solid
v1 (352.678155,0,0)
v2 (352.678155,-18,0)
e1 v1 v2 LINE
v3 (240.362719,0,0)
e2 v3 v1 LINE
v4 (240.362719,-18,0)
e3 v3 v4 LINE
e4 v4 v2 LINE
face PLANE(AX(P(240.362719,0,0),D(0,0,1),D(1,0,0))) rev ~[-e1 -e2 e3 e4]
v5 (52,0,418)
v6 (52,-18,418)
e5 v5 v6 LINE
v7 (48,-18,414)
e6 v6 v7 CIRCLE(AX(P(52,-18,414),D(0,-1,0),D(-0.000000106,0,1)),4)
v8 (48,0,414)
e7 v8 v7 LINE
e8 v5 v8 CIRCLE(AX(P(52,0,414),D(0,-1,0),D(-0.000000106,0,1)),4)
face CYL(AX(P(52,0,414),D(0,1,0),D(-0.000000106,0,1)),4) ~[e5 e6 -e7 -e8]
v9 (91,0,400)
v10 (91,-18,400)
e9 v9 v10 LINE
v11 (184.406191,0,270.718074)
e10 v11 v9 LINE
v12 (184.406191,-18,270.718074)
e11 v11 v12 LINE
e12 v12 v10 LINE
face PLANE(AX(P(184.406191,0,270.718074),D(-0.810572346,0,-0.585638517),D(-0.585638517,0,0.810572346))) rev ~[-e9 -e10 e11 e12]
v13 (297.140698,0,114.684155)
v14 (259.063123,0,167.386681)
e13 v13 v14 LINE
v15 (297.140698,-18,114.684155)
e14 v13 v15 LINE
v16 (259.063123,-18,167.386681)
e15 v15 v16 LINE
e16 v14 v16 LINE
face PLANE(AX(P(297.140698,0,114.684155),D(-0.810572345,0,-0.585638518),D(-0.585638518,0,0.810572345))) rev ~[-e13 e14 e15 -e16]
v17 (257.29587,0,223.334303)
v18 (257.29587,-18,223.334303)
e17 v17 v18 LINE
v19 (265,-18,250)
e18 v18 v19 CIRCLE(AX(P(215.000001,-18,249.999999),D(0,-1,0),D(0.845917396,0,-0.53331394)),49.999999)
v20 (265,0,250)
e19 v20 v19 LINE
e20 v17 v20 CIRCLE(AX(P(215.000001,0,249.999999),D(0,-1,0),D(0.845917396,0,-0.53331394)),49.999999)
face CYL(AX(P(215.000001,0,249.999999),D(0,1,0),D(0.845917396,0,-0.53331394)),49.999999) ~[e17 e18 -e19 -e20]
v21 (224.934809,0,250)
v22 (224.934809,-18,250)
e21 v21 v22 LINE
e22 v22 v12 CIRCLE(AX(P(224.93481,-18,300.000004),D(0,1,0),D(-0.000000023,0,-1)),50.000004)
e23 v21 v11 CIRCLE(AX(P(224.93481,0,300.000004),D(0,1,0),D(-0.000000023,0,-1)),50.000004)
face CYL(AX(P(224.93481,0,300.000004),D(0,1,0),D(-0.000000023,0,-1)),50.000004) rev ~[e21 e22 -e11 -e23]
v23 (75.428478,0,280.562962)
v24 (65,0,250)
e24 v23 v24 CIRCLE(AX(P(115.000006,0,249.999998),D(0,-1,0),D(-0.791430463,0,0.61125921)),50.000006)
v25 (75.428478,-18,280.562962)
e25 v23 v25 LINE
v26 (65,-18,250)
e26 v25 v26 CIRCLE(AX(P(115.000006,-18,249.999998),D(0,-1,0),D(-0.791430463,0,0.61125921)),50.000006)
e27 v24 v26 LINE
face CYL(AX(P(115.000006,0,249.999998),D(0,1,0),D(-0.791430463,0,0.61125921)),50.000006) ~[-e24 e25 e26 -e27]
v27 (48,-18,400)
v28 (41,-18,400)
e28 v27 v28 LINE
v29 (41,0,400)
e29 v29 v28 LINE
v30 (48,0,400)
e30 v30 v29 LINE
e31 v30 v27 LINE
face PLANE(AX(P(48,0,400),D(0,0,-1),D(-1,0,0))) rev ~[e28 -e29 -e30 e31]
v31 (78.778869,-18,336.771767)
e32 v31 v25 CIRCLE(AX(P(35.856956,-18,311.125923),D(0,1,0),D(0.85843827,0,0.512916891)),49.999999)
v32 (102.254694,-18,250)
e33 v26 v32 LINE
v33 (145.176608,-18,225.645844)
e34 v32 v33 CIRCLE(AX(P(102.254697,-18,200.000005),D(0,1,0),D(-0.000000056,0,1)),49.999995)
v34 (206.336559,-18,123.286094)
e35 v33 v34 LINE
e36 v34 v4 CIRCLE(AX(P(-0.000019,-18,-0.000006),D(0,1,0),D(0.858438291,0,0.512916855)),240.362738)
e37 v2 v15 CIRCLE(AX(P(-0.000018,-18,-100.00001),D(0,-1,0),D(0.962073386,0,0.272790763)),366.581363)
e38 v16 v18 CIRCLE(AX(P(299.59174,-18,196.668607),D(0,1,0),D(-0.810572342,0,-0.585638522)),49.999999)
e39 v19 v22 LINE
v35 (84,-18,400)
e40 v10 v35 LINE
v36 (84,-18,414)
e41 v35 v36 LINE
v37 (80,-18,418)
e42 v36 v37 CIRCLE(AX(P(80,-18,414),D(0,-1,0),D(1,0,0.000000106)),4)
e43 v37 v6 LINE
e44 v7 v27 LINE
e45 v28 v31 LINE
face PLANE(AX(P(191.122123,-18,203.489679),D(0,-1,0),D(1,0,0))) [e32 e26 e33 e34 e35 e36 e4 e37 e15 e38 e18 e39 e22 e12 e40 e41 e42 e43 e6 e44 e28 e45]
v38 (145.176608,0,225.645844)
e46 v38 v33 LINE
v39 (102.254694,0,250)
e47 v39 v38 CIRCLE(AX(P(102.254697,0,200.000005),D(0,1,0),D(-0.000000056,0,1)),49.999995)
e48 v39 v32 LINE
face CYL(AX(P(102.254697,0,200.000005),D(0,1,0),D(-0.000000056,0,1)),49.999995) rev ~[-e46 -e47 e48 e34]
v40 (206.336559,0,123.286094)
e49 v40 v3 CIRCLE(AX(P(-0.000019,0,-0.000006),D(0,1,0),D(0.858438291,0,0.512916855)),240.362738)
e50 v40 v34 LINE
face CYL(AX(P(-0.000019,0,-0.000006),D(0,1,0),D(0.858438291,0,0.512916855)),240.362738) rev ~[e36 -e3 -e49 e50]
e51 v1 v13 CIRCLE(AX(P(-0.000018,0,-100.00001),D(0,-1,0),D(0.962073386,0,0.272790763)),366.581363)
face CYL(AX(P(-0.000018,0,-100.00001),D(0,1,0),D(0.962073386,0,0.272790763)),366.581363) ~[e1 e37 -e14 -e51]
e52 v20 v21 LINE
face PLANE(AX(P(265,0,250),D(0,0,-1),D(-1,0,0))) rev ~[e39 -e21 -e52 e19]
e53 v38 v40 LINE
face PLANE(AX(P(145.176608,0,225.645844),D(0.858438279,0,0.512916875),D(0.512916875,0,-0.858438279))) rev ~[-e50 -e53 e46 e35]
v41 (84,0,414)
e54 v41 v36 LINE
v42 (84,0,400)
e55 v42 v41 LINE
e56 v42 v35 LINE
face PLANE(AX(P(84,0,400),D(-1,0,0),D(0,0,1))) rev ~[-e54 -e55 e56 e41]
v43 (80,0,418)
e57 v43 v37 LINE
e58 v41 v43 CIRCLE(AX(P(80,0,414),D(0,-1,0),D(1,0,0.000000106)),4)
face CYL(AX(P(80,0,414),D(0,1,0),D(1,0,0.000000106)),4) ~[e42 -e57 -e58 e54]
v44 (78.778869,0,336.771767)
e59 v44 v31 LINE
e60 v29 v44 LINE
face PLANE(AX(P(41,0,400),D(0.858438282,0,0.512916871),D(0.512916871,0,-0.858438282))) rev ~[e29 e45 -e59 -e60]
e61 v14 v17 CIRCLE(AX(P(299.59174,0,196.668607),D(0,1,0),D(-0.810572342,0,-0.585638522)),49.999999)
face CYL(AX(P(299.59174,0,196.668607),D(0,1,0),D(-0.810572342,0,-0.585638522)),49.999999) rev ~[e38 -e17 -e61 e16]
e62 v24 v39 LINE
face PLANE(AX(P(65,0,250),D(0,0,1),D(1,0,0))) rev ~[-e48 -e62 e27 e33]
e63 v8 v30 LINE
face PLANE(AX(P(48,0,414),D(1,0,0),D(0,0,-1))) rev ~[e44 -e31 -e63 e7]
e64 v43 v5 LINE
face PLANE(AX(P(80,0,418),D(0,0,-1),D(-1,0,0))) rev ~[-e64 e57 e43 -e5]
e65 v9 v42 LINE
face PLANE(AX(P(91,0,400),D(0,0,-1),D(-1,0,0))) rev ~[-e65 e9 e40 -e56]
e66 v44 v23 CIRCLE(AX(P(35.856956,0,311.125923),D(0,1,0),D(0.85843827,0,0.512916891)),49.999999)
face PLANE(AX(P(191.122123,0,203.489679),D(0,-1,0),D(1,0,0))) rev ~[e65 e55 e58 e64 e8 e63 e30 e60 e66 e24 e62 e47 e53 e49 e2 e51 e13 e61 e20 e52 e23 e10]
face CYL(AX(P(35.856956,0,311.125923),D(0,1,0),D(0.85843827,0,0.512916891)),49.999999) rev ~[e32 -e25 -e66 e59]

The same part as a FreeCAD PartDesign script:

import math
import FreeCAD as App
import Part
import Sketcher

V = App.Vector
Q = App.Units.Quantity

doc = App.newDocument("Part")
body = doc.addObject("PartDesign::Body", "Body")

# Sketch on XZ plane
sketch1 = body.newObject("Sketcher::SketchObject", "Sketch")
sketch1.AttachmentSupport = (doc.getObject("XZ_Plane"), [""])
sketch1.MapMode = "FlatFace"
sketch1.addGeometry(Part.LineSegment(V(240.4, 0, 0), V(352.7, 0, 0)), False)
sketch1.addGeometry(Part.ArcOfCircle(Part.Circle(V(0, -100, 0), V(0, 0, 1), 366.6), math.radians(16), math.radians(36)), False)
sketch1.addGeometry(Part.LineSegment(V(297.1, 114.7, 0), V(259.1, 167.4, 0)), False)
sketch1.addGeometry(Part.ArcOfCircle(Part.Circle(V(299.6, 196.7, 0), V(0, 0, 1), 50), math.radians(148), math.radians(216)), False)
sketch1.addGeometry(Part.ArcOfCircle(Part.Circle(V(215, 250, 0), V(0, 0, 1), 50), math.radians(-32), math.radians(0)), False)
sketch1.addGeometry(Part.LineSegment(V(265, 250, 0), V(224.9, 250, 0)), False)
sketch1.addGeometry(Part.ArcOfCircle(Part.Circle(V(224.9, 300, 0), V(0, 0, 1), 50), math.radians(-144), math.radians(-90)), False)
sketch1.addGeometry(Part.LineSegment(V(184.4, 270.7, 0), V(91, 400, 0)), False)
sketch1.addGeometry(Part.LineSegment(V(91, 400, 0), V(84, 400, 0)), False)
sketch1.addGeometry(Part.LineSegment(V(84, 400, 0), V(84, 414, 0)), False)
sketch1.addGeometry(Part.ArcOfCircle(Part.Circle(V(80, 414, 0), V(0, 0, 1), 4), math.radians(0), math.radians(90)), False)
sketch1.addGeometry(Part.LineSegment(V(80, 418, 0), V(52, 418, 0)), False)
sketch1.addGeometry(Part.ArcOfCircle(Part.Circle(V(52, 414, 0), V(0, 0, 1), 4), math.radians(90), math.radians(180)), False)
sketch1.addGeometry(Part.LineSegment(V(48, 414, 0), V(48, 400, 0)), False)
sketch1.addGeometry(Part.LineSegment(V(48, 400, 0), V(41, 400, 0)), False)
sketch1.addGeometry(Part.LineSegment(V(41, 400, 0), V(78.8, 336.8, 0)), False)
sketch1.addGeometry(Part.ArcOfCircle(Part.Circle(V(35.9, 311.1, 0), V(0, 0, 1), 50), math.radians(-38), math.radians(31)), False)
sketch1.addGeometry(Part.ArcOfCircle(Part.Circle(V(115, 250, 0), V(0, 0, 1), 50), math.radians(142), math.radians(180)), False)
sketch1.addGeometry(Part.LineSegment(V(65, 250, 0), V(102.3, 250, 0)), False)
sketch1.addGeometry(Part.ArcOfCircle(Part.Circle(V(102.3, 200, 0), V(0, 0, 1), 50), math.radians(31), math.radians(90)), False)
sketch1.addGeometry(Part.LineSegment(V(145.2, 225.6, 0), V(206.3, 123.3, 0)), False)
sketch1.addGeometry(Part.ArcOfCircle(Part.Circle(V(0, 0, 0), V(0, 0, 1), 240.4), math.radians(0), math.radians(31)), False)
sketch1.addConstraint(Sketcher.Constraint("Coincident", 0, 2, 1, 1))
sketch1.addConstraint(Sketcher.Constraint("Tangent", 1, 2, 2, 1))
sketch1.addConstraint(Sketcher.Constraint("Tangent", 2, 2, 3, 2))
sketch1.addConstraint(Sketcher.Constraint("Tangent", 3, 1, 4, 1))
sketch1.addConstraint(Sketcher.Constraint("Coincident", 4, 2, 5, 1))
sketch1.addConstraint(Sketcher.Constraint("Tangent", 5, 2, 6, 2))
sketch1.addConstraint(Sketcher.Constraint("Tangent", 6, 1, 7, 1))
sketch1.addConstraint(Sketcher.Constraint("Coincident", 7, 2, 8, 1))
sketch1.addConstraint(Sketcher.Constraint("Coincident", 8, 2, 9, 1))
sketch1.addConstraint(Sketcher.Constraint("Tangent", 9, 2, 10, 1))
sketch1.addConstraint(Sketcher.Constraint("Tangent", 10, 2, 11, 1))
sketch1.addConstraint(Sketcher.Constraint("Tangent", 11, 2, 12, 1))
sketch1.addConstraint(Sketcher.Constraint("Tangent", 12, 2, 13, 1))
sketch1.addConstraint(Sketcher.Constraint("Coincident", 13, 2, 14, 1))
sketch1.addConstraint(Sketcher.Constraint("Coincident", 14, 2, 15, 1))
sketch1.addConstraint(Sketcher.Constraint("Tangent", 15, 2, 16, 2))
sketch1.addConstraint(Sketcher.Constraint("Tangent", 16, 1, 17, 1))
sketch1.addConstraint(Sketcher.Constraint("Coincident", 17, 2, 18, 1))
sketch1.addConstraint(Sketcher.Constraint("Tangent", 18, 2, 19, 2))
sketch1.addConstraint(Sketcher.Constraint("Tangent", 19, 1, 20, 1))
sketch1.addConstraint(Sketcher.Constraint("Tangent", 20, 2, 21, 2))
sketch1.addConstraint(Sketcher.Constraint("Coincident", 21, 1, 0, 1))
sketch1.addConstraint(Sketcher.Constraint("Horizontal", 0))
sketch1.addConstraint(Sketcher.Constraint("Horizontal", 5))
sketch1.addConstraint(Sketcher.Constraint("Horizontal", 8))
sketch1.addConstraint(Sketcher.Constraint("Vertical", 9))
sketch1.addConstraint(Sketcher.Constraint("Horizontal", 11))
sketch1.addConstraint(Sketcher.Constraint("Vertical", 13))
sketch1.addConstraint(Sketcher.Constraint("Horizontal", 14))
sketch1.addConstraint(Sketcher.Constraint("Horizontal", 18))
sketch1.addConstraint(Sketcher.Constraint("Equal", 3, 4))
sketch1.addConstraint(Sketcher.Constraint("Equal", 10, 12))
sketch1.addConstraint(Sketcher.Constraint("Equal", 4, 16))
sketch1.addConstraint(Sketcher.Constraint("Equal", 6, 17))
sketch1.addConstraint(Sketcher.Constraint("PointOnObject", 0, 2, -1))
sketch1.addConstraint(Sketcher.Constraint("Parallel", 2, 7))
sketch1.addConstraint(Sketcher.Constraint("Parallel", 15, 20))
sketch1.addConstraint(Sketcher.Constraint("Horizontal", 4, 3, 17, 3))
sketch1.addConstraint(Sketcher.Constraint("Horizontal", 17, 3, 4, 2))
sketch1.addConstraint(Sketcher.Constraint("Horizontal", 8, 2, 13, 2))
sketch1.addConstraint(Sketcher.Constraint("Horizontal", 5, 2, 17, 2))
sketch1.addConstraint(Sketcher.Constraint("Vertical", 1, 3, 21, 3))
sketch1.addConstraint(Sketcher.Constraint("Equal", 8, 14))
sketch1.addConstraint(Sketcher.Constraint("Radius", 3, Q("49.999999 mm")))
sketch1.addConstraint(Sketcher.Constraint("Radius", 10, Q("4 mm")))
sketch1.addConstraint(Sketcher.Constraint("DistanceX", 8, 2, 8, 1, Q("7 mm")))
sketch1.addConstraint(Sketcher.Constraint("DistanceX", 11, 2, 11, 1, Q("28 mm")))
sketch1.addConstraint(Sketcher.Constraint("DistanceY", 9, 1, 9, 2, Q("14 mm")))
sketch1.addConstraint(Sketcher.Constraint("DistanceX", -1, 1, 4, 3, Q("215.000001 mm")))
sketch1.addConstraint(Sketcher.Constraint("DistanceY", -1, 1, 4, 3, Q("249.999999 mm")))
sketch1.addConstraint(Sketcher.Constraint("DistanceX", -1, 1, 10, 3, Q("80 mm")))
sketch1.addConstraint(Sketcher.Constraint("DistanceY", -1, 1, 10, 3, Q("414 mm")))
sketch1.addConstraint(Sketcher.Constraint("DistanceX", -1, 1, 17, 2, Q("65 mm")))
sketch1.addConstraint(Sketcher.Constraint("DistanceY", 19, 3, 6, 3, Q("99.999999 mm")))
sketch1.addConstraint(Sketcher.Constraint("Radius", 21, Q("240.362738 mm")))
sketch1.addConstraint(Sketcher.Constraint("Radius", 1, Q("366.581363 mm")))
sketch1.addConstraint(Sketcher.Constraint("Radius", 6, Q("50.000004 mm")))
sketch1.addConstraint(Sketcher.Constraint("DistanceX", 19, 3, 1, 2, Q("194.886001 mm")))
sketch1.addConstraint(Sketcher.Constraint("Distance", 20, Q("119.239499 mm")))
sketch1.addConstraint(Sketcher.Constraint("DistanceX", 5, 2, 5, 1, Q("40.065191 mm")))
sketch1.addConstraint(Sketcher.Constraint("DistanceY", 3, 1, 6, 3, Q("76.665701 mm")))
sketch1.addConstraint(Sketcher.Constraint("DistanceX", 0, 1, 0, 2, Q("112.315436 mm")))
pad1 = body.newObject("PartDesign::Pad", "Pad")
pad1.Profile = sketch1
pad1.Length = 18

doc.recompute()
